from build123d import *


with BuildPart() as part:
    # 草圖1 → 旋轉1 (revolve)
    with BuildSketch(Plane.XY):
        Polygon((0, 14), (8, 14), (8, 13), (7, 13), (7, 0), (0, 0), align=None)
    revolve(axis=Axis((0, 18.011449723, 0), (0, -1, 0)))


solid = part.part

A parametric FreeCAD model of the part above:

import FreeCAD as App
import Part
import Sketcher
from FreeCAD import Vector
Q = App.Units.Quantity


def add_polygon(sketch, points):
    """Adds a closed chain of lines whose ends are joined by coincident constraints."""
    first, n = sketch.GeometryCount, len(points)
    for a, b in zip(points, points[1:] + points[:1]):
        sketch.addGeometry(Part.LineSegment(App.Vector(*a, 0), App.Vector(*b, 0)), False)
    for i in range(n):
        sketch.addConstraint(Sketcher.Constraint("Coincident", first + i, 2, first + (i + 1) % n, 1))

doc = App.newDocument("Part")
body = doc.addObject("PartDesign::Body", "Body")

# Sketch on XY plane
sketch1 = body.newObject("Sketcher::SketchObject", "Sketch")
sketch1.AttachmentSupport = (doc.getObject("XY_Plane"), [""])
sketch1.MapMode = "FlatFace"
add_polygon(sketch1, [(8, 14), (0, 14), (0, 0), (7, 0), (7, 13), (8, 13)])  # lines 0-5
sketch1.addConstraint([
    Sketcher.Constraint("Horizontal", 0),
    Sketcher.Constraint("Vertical", 1),
    Sketcher.Constraint("Horizontal", 2),
    Sketcher.Constraint("Vertical", 3),
    Sketcher.Constraint("Horizontal", 4),
    Sketcher.Constraint("Vertical", 5),
    Sketcher.Constraint("Coincident", 1, 2, -1, 1),
    Sketcher.Constraint("Equal", 4, 5),
    Sketcher.Constraint("DistanceX", 0, 2, 0, 1, Q("8 mm")),
    Sketcher.Constraint("DistanceX", 2, 1, 2, 2, Q("7 mm")),
    Sketcher.Constraint("DistanceY", 1, 2, 1, 1, Q("14 mm")),
])
revolution = body.newObject("PartDesign::Revolution", "Revolution")
revolution.Profile = sketch1
revolution.ReferenceAxis = (sketch1, ["V_Axis"])
revolution.Angle = 360

doc.recompute()
